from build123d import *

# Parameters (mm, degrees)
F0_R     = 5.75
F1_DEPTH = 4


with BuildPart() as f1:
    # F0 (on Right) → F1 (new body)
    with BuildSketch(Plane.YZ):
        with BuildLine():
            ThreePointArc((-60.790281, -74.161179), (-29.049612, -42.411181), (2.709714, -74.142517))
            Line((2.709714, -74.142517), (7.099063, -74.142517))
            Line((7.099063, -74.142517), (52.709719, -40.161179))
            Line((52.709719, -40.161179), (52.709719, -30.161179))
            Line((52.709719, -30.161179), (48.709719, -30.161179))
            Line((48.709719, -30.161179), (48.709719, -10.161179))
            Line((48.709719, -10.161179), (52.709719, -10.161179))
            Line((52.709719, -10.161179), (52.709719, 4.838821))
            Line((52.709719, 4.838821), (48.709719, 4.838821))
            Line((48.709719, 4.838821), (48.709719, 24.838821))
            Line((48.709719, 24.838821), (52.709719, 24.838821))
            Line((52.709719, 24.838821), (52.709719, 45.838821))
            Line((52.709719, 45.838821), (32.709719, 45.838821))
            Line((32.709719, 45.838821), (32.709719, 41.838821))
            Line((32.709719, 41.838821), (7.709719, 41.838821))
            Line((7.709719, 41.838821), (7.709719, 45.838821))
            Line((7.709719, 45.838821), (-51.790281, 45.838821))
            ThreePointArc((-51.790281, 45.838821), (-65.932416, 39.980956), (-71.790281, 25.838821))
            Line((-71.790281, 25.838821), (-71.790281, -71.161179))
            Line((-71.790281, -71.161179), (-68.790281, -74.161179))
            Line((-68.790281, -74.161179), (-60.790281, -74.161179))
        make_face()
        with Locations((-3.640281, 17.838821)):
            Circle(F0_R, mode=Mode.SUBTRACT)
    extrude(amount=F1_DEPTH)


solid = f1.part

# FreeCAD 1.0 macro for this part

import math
import FreeCAD as App
import Part
import Sketcher
from FreeCAD import Vector
Q = App.Units.Quantity

doc = App.newDocument("Part")
params = doc.addObject("Spreadsheet::Sheet", "Params")
for row, (alias, value) in enumerate([
    ("sketch1_diameter", "11.5 mm"),
    ("sketch1_width", "4 mm"),
    ("sketch1_width2", "20 mm"),
    ("sketch1_width3", "25 mm"),
    ("sketch1_width4", "8 mm"),
    ("pad1_length", "4 mm"),
], start=1):
    params.set(f"A{row}", alias)
    params.set(f"B{row}", "=" + value)
    params.setAlias(f"B{row}", alias)

body = doc.addObject("PartDesign::Body", "Body")

# Sketch on YZ plane
sketch1 = body.newObject("Sketcher::SketchObject", "Sketch")
sketch1.AttachmentSupport = (doc.getObject("YZ_Plane"), [""])
sketch1.MapMode = "FlatFace"
sketch1.addGeometry([
    Part.ArcOfCircle(Part.Circle(Vector(-29, -74.2, 0), Vector(0, 0, 1), 31.8), math.radians(0), math.radians(180)),  # 0
    Part.LineSegment(Vector(2.7, -74.1, 0), Vector(7.1, -74.1, 0)),  # 1
    Part.LineSegment(Vector(7.1, -74.1, 0), Vector(52.7, -40.2, 0)),  # 2
    Part.LineSegment(Vector(52.7, -40.2, 0), Vector(52.7, -30.2, 0)),  # 3
    Part.LineSegment(Vector(52.7, -30.2, 0), Vector(48.7, -30.2, 0)),  # 4
    Part.LineSegment(Vector(48.7, -30.2, 0), Vector(48.7, -10.2, 0)),  # 5
    Part.LineSegment(Vector(48.7, -10.2, 0), Vector(52.7, -10.2, 0)),  # 6
    Part.LineSegment(Vector(52.7, -10.2, 0), Vector(52.7, 4.8, 0)),  # 7
    Part.LineSegment(Vector(52.7, 4.8, 0), Vector(48.7, 4.8, 0)),  # 8
    Part.LineSegment(Vector(48.7, 4.8, 0), Vector(48.7, 24.8, 0)),  # 9
    Part.LineSegment(Vector(48.7, 24.8, 0), Vector(52.7, 24.8, 0)),  # 10
    Part.LineSegment(Vector(52.7, 24.8, 0), Vector(52.7, 45.8, 0)),  # 11
    Part.LineSegment(Vector(52.7, 45.8, 0), Vector(32.7, 45.8, 0)),  # 12
    Part.LineSegment(Vector(32.7, 45.8, 0), Vector(32.7, 41.8, 0)),  # 13
    Part.LineSegment(Vector(32.7, 41.8, 0), Vector(7.7, 41.8, 0)),  # 14
    Part.LineSegment(Vector(7.7, 41.8, 0), Vector(7.7, 45.8, 0)),  # 15
    Part.LineSegment(Vector(7.7, 45.8, 0), Vector(-51.8, 45.8, 0)),  # 16
    Part.ArcOfCircle(Part.Circle(Vector(-51.8, 25.8, 0), Vector(0, 0, 1), 20), math.radians(90), math.radians(180)),  # 17
    Part.LineSegment(Vector(-71.8, 25.8, 0), Vector(-71.8, -71.2, 0)),  # 18
    Part.LineSegment(Vector(-71.8, -71.2, 0), Vector(-68.8, -74.2, 0)),  # 19
    Part.LineSegment(Vector(-68.8, -74.2, 0), Vector(-60.8, -74.2, 0)),  # 20
    Part.Circle(Vector(-3.6, 17.8, 0), Vector(0, 0, 1), 5.8),  # 21
], False)
sketch1.addConstraint([
    Sketcher.Constraint("Coincident", 0, 1, 1, 1),
    Sketcher.Constraint("Coincident", 1, 2, 2, 1),
    Sketcher.Constraint("Coincident", 2, 2, 3, 1),
    Sketcher.Constraint("Coincident", 3, 2, 4, 1),
    Sketcher.Constraint("Coincident", 4, 2, 5, 1),
    Sketcher.Constraint("Coincident", 5, 2, 6, 1),
    Sketcher.Constraint("Coincident", 6, 2, 7, 1),
    Sketcher.Constraint("Coincident", 7, 2, 8, 1),
    Sketcher.Constraint("Coincident", 8, 2, 9, 1),
    Sketcher.Constraint("Coincident", 9, 2, 10, 1),
    Sketcher.Constraint("Coincident", 10, 2, 11, 1),
    Sketcher.Constraint("Coincident", 11, 2, 12, 1),
    Sketcher.Constraint("Coincident", 12, 2, 13, 1),
    Sketcher.Constraint("Coincident", 13, 2, 14, 1),
    Sketcher.Constraint("Coincident", 14, 2, 15, 1),
    Sketcher.Constraint("Coincident", 15, 2, 16, 1),
    Sketcher.Constraint("Tangent", 16, 2, 17, 1),
    Sketcher.Constraint("Tangent", 17, 2, 18, 1),
    Sketcher.Constraint("Coincident", 18, 2, 19, 1),
    Sketcher.Constraint("Coincident", 19, 2, 20, 1),
    Sketcher.Constraint("Coincident", 20, 2, 0, 2),
    Sketcher.Constraint("Horizontal", 1),
    Sketcher.Constraint("Vertical", 3),
    Sketcher.Constraint("Horizontal", 4),
    Sketcher.Constraint("Vertical", 5),
    Sketcher.Constraint("Horizontal", 6),
    Sketcher.Constraint("Vertical", 7),
    Sketcher.Constraint("Horizontal", 8),
    Sketcher.Constraint("Vertical", 9),
    Sketcher.Constraint("Horizontal", 10),
    Sketcher.Constraint("Vertical", 11),
    Sketcher.Constraint("Horizontal", 12),
    Sketcher.Constraint("Vertical", 13),
    Sketcher.Constraint("Horizontal", 14),
    Sketcher.Constraint("Vertical", 15),
    Sketcher.Constraint("Horizontal", 16),
    Sketcher.Constraint("Vertical", 18),
    Sketcher.Constraint("Horizontal", 20),
    Sketcher.Constraint("Horizontal", 12, 2, 15, 2),
    Sketcher.Constraint("Horizontal", 0, 3, 19, 2),
    Sketcher.Constraint("Vertical", 3, 2, 6, 2),
    Sketcher.Constraint("Vertical", 5, 2, 8, 2),
    Sketcher.Constraint("Vertical", 7, 2, 10, 2),
    Sketcher.Constraint("Equal", 12, 5),
    Sketcher.Constraint("Equal", 5, 9),
    Sketcher.Constraint("Equal", 10, 13),
    Sketcher.Constraint("Diameter", 21, 11.5),
    Sketcher.Constraint("DistanceX", 4, 2, 4, 1, 4.0),
    Sketcher.Constraint("DistanceX", 12, 2, 12, 1, 20.0),
    Sketcher.Constraint("DistanceX", 14, 2, 14, 1, 25.0),
    Sketcher.Constraint("DistanceX", 20, 1, 20, 2, 8.0),
    Sketcher.Constraint("DistanceY", 3, 1, 3, 2, 10.0),
    Sketcher.Constraint("DistanceY", 7, 1, 7, 2, 15.0),
    Sketcher.Constraint("DistanceY", 11, 1, 11, 2, 21.0),
    Sketcher.Constraint("DistanceY", 18, 2, 18, 1, 97.0),
    Sketcher.Constraint("Angle", 19, Q("-45 deg")),
    Sketcher.Constraint("Radius", 0, 31.75),
    Sketcher.Constraint("DistanceX", 16, 2, 16, 1, 59.5),
    Sketcher.Constraint("DistanceY", 0, 3, 17, 3, 99.999999),
    Sketcher.Constraint("DistanceY", 0, 3, 21, 3, 92.000001),
    Sketcher.Constraint("DistanceY", 2, 2, 21, 3, 58.0),
    Sketcher.Constraint("DistanceX", 0, 3, 21, 3, 25.4),
    Sketcher.Constraint("DistanceX", 1, 1, 1, 2, 4.389349),
    Sketcher.Constraint("DistanceX", 0, 3, -1, 1, 29.040281),
    Sketcher.Constraint("DistanceY", 0, 3, -1, 1, 74.16118),
    Sketcher.Constraint("Distance", 2, 56.877617),
])
sketch1.setExpression("Constraints[46]", "Params.sketch1_diameter")
sketch1.setExpression("Constraints[47]", "Params.sketch1_width")
sketch1.setExpression("Constraints[48]", "Params.sketch1_width2")
sketch1.setExpression("Constraints[49]", "Params.sketch1_width3")
sketch1.setExpression("Constraints[50]", "Params.sketch1_width4")
pad1 = body.newObject("PartDesign::Pad", "Pad")
pad1.Profile = sketch1
pad1.setExpression("Length", "Params.pad1_length")

doc.recompute()
